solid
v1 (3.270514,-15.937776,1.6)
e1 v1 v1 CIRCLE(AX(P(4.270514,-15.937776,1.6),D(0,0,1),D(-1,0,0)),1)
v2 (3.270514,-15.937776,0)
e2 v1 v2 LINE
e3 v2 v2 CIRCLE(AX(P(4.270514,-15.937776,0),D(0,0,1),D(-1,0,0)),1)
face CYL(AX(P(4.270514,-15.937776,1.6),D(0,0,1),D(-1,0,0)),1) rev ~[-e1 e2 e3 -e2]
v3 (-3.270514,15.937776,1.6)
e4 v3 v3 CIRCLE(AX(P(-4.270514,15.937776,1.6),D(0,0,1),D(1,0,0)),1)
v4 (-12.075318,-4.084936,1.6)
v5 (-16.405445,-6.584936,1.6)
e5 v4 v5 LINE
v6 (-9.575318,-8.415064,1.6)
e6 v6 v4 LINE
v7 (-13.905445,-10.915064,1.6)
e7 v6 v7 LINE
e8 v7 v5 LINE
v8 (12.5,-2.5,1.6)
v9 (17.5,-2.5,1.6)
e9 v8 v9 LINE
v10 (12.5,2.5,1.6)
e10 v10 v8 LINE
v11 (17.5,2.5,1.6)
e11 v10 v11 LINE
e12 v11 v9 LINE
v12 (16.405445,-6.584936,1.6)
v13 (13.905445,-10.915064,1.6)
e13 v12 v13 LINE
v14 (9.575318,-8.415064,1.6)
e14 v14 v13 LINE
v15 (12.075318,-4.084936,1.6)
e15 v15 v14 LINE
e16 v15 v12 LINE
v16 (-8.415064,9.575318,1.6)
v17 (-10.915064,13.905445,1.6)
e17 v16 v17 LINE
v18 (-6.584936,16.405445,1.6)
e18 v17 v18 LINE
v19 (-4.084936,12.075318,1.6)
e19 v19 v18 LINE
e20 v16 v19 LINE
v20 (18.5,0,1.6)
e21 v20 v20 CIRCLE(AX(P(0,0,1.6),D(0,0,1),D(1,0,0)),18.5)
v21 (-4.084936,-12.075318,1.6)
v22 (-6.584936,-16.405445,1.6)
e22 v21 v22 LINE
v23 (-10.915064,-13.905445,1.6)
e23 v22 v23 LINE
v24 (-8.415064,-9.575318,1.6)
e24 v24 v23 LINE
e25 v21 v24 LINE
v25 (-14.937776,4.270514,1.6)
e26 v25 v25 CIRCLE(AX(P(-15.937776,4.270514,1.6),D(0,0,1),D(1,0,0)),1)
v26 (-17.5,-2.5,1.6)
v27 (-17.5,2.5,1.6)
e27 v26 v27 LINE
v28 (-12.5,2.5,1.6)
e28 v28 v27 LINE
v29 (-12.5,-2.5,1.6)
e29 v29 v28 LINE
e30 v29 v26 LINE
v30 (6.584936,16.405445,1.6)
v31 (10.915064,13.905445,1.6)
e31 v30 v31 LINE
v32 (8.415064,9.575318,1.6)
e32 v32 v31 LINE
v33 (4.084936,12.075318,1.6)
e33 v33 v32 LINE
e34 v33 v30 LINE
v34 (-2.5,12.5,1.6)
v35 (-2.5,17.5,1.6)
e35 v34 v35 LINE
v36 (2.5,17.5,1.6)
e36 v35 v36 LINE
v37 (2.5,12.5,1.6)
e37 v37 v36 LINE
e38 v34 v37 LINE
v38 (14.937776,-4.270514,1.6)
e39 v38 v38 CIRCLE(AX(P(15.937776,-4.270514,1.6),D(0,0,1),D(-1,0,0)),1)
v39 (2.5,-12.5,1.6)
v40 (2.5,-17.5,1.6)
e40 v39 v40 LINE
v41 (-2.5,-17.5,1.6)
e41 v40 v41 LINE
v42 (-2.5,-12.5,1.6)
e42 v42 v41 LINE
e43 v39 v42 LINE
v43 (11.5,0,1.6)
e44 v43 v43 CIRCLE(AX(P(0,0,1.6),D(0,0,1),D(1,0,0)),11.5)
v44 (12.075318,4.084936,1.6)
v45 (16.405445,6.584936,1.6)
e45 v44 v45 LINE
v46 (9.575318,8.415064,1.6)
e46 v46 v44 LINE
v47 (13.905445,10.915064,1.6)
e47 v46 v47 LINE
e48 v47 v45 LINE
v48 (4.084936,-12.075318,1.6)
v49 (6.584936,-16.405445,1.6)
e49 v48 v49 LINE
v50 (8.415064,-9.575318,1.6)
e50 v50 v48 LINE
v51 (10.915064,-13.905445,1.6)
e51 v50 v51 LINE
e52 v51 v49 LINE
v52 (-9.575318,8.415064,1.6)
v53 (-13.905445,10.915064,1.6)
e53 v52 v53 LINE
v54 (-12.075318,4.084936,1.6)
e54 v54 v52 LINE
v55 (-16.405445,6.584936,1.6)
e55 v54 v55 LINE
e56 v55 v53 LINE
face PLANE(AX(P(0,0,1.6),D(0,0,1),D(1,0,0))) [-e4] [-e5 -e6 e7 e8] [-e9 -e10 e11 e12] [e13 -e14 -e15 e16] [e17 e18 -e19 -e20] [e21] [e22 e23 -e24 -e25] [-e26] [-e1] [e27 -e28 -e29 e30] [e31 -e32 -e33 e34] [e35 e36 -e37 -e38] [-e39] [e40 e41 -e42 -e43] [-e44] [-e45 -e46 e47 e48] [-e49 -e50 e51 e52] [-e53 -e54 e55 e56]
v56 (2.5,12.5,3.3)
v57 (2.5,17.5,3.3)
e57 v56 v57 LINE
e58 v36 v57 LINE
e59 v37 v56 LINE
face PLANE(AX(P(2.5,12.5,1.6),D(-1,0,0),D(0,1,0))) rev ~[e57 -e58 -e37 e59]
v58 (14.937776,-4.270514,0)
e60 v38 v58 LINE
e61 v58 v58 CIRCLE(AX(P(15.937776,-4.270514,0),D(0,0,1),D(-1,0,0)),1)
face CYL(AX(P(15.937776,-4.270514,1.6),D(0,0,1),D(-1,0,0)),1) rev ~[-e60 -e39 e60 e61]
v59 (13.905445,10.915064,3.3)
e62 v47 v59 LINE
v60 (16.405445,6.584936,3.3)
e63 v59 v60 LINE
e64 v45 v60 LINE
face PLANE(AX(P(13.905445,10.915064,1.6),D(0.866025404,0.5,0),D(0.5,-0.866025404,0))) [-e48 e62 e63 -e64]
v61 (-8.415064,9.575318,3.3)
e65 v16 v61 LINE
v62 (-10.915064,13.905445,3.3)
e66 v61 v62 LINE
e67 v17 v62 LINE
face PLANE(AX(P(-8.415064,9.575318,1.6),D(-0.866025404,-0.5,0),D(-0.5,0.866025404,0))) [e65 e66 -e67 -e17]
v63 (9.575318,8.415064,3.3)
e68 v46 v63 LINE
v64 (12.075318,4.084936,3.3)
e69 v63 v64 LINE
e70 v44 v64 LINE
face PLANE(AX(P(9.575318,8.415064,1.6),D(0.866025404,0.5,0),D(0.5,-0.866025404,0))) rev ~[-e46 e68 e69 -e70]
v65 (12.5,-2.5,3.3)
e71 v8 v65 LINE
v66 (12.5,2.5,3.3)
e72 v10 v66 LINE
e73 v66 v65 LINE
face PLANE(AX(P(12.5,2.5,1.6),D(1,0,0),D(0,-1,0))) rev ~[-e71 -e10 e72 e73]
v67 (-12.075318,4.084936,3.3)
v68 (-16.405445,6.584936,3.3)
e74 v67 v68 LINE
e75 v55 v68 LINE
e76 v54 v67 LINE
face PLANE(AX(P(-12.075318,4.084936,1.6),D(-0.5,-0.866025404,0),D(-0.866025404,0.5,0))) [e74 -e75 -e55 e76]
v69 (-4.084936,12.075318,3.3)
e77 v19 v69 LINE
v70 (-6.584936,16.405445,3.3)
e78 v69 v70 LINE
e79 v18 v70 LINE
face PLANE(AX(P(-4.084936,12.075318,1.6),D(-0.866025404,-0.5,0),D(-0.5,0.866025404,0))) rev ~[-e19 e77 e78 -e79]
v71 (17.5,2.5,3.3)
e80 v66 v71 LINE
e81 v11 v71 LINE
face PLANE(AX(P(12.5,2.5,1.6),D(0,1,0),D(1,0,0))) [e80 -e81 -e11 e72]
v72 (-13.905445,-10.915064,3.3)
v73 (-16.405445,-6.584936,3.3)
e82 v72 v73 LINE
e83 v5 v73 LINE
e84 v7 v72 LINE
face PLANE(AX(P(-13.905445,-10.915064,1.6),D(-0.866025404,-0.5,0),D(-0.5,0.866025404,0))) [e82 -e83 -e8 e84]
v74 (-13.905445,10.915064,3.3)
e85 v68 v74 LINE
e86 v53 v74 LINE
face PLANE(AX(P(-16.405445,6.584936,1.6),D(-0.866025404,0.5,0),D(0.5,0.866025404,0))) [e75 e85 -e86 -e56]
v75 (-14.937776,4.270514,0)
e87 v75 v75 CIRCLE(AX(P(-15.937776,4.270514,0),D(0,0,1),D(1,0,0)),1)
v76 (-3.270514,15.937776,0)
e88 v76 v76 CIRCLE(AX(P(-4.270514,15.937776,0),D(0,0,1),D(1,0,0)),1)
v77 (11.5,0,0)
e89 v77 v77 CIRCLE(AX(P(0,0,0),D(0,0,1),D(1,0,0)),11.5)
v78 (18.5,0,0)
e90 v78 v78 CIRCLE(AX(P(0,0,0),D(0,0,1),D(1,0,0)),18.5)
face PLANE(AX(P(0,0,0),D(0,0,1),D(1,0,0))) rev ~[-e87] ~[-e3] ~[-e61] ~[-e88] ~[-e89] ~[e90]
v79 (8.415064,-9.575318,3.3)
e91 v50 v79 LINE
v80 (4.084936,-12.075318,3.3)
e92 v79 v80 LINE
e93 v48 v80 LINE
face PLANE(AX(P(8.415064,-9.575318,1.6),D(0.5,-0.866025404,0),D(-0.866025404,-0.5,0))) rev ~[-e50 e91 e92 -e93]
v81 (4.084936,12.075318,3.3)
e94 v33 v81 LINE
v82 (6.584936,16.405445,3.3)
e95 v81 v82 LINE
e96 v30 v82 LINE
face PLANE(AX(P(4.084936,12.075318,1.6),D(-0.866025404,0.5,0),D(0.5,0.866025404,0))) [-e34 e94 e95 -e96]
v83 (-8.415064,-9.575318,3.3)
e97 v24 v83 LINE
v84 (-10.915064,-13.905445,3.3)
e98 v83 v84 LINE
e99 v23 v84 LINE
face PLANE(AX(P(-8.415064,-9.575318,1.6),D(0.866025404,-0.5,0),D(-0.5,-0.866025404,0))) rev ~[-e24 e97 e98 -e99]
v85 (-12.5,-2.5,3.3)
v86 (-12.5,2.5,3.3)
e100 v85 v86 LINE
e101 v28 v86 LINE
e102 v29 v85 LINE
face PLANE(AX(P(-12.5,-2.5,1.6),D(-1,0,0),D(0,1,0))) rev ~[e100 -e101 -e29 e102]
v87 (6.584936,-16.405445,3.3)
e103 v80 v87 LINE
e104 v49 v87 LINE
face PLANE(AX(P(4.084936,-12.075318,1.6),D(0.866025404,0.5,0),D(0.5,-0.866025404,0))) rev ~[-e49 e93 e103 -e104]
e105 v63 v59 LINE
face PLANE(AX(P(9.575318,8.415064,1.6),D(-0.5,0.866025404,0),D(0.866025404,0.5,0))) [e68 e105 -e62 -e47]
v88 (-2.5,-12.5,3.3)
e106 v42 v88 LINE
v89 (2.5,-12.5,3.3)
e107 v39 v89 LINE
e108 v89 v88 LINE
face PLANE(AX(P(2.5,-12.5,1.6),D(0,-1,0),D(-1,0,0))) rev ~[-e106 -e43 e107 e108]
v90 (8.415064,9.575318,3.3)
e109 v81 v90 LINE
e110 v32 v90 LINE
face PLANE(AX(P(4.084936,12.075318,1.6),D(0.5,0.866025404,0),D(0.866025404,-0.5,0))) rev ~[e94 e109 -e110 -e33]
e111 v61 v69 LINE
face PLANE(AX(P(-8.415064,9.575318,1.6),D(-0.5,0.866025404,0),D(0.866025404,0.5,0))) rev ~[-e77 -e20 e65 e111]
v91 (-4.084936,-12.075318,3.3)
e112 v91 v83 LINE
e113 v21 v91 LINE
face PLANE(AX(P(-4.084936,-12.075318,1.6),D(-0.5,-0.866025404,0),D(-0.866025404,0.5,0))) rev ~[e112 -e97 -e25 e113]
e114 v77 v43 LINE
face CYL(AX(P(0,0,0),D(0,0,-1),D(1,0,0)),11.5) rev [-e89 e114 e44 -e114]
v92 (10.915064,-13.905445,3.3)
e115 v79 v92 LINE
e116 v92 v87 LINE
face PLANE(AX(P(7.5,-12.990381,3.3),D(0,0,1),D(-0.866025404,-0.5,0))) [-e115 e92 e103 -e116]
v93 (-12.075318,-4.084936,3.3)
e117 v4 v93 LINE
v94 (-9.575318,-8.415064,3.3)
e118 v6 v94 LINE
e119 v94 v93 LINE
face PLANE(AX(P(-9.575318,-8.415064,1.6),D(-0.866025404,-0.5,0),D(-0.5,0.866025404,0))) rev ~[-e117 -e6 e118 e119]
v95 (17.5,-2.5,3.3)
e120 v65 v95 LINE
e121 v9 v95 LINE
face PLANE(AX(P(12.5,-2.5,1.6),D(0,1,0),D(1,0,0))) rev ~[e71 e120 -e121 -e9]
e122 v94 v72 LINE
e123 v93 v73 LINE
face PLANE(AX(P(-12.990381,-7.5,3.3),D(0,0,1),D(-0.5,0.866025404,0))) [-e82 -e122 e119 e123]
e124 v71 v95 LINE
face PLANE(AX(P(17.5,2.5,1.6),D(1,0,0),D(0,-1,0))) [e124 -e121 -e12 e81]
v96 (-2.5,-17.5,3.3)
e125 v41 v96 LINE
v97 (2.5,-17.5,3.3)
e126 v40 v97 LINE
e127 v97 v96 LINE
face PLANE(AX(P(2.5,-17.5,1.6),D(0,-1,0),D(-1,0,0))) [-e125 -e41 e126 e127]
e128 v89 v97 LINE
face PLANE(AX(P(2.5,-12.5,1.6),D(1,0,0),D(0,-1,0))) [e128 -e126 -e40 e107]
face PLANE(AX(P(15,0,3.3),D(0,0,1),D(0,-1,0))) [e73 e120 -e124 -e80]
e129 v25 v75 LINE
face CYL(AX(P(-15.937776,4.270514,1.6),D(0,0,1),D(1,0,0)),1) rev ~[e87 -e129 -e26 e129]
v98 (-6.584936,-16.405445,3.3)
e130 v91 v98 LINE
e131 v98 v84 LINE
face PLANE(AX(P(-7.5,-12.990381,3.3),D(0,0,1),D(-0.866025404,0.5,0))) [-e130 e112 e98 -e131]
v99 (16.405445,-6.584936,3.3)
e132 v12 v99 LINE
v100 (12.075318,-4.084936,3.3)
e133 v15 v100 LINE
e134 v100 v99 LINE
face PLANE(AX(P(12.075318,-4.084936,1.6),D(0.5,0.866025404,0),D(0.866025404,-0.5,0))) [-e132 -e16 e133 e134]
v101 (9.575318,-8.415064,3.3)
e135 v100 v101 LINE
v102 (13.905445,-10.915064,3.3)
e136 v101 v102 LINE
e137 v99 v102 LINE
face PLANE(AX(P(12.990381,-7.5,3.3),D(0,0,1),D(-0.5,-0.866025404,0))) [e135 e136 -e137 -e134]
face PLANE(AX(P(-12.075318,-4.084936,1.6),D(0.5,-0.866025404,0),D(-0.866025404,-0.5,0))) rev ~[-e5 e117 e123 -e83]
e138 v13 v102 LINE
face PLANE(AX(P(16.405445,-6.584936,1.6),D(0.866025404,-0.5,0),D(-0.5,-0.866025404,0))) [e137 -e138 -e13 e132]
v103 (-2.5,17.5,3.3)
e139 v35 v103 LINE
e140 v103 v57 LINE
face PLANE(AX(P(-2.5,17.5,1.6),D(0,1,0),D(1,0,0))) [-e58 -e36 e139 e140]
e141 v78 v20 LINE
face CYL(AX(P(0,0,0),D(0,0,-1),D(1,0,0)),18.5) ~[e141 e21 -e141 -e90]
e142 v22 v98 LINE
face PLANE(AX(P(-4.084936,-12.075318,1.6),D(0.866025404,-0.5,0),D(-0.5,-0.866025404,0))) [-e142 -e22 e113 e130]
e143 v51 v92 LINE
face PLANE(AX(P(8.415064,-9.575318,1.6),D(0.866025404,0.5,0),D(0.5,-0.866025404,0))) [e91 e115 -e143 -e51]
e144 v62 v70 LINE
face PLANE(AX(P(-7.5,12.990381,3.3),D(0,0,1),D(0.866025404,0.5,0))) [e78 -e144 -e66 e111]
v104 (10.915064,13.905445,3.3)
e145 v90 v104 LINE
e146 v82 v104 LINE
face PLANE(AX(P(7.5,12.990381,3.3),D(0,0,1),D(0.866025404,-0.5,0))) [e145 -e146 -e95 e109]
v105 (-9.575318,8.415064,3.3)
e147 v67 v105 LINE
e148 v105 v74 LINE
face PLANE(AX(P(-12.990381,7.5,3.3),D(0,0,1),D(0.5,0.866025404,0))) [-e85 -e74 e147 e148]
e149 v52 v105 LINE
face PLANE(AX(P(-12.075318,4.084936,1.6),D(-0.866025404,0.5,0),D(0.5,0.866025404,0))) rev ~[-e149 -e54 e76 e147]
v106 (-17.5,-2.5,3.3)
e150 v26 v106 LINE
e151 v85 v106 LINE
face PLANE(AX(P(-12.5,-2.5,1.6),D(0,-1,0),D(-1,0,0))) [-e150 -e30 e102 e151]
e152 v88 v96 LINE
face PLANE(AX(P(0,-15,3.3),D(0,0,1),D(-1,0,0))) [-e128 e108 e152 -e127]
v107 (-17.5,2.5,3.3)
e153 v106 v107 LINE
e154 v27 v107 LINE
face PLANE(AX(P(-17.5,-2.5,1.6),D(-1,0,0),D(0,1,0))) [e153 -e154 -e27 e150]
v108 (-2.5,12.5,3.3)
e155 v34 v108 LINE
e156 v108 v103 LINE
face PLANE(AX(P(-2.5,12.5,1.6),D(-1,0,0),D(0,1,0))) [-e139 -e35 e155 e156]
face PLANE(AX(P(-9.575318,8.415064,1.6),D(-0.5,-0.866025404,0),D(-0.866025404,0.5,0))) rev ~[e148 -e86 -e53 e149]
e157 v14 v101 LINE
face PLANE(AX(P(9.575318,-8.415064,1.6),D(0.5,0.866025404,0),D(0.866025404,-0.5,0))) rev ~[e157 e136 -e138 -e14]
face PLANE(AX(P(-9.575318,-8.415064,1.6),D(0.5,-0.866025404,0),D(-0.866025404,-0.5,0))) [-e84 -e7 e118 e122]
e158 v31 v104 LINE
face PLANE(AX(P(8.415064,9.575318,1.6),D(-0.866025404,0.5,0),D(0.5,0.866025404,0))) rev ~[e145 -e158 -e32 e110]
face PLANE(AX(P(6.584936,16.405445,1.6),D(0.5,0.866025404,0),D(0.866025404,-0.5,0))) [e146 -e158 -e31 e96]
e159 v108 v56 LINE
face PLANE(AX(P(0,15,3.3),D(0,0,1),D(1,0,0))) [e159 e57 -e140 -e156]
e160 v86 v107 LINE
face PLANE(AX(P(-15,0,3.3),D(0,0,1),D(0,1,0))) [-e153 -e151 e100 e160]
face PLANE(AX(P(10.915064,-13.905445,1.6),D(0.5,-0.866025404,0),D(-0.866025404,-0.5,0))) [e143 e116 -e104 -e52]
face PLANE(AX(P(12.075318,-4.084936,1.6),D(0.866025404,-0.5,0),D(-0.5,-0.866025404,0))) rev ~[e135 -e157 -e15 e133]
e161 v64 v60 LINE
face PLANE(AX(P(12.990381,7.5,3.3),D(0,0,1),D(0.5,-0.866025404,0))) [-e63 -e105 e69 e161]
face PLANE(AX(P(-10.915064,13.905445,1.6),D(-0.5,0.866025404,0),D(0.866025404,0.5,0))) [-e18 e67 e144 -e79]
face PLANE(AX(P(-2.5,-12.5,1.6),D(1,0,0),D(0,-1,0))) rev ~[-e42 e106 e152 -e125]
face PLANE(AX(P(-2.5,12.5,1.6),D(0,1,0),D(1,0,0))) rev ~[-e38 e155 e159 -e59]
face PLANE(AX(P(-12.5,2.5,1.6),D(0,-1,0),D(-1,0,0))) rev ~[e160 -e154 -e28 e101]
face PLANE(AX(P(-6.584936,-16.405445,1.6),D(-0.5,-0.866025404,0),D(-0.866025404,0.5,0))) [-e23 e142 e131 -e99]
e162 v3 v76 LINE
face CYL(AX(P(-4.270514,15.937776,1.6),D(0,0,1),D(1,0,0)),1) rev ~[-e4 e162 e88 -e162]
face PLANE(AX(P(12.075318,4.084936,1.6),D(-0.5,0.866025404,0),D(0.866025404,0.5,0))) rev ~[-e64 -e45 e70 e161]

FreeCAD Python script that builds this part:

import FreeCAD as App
import Part
import Sketcher

V = App.Vector


def add_polygon(sketch, points):
    """Adds a closed chain of lines whose ends are joined by coincident constraints."""
    first, n = sketch.GeometryCount, len(points)
    for a, b in zip(points, points[1:] + points[:1]):
        sketch.addGeometry(Part.LineSegment(App.Vector(*a, 0), App.Vector(*b, 0)), False)
    for i in range(n):
        sketch.addConstraint(Sketcher.Constraint("Coincident", first + i, 2, first + (i + 1) % n, 1))

doc = App.newDocument("Part")
body = doc.addObject("PartDesign::Body", "Body")

# Sketch on XY plane
sketch1 = body.newObject("Sketcher::SketchObject", "Sketch")
sketch1.AttachmentSupport = (doc.getObject("XY_Plane"), [""])
sketch1.MapMode = "FlatFace"
sketch1.addGeometry([
    Part.Circle(V(0, 0, 0), V(0, 0, 1), 18),
    Part.Circle(V(0, 0, 0), V(0, 0, 1), 12),
], False)
sketch1.addConstraint([
    Sketcher.Constraint("Coincident", 0, 3, -1, 1),
    Sketcher.Constraint("Coincident", 1, 3, -1, 1),
    Sketcher.Constraint("Diameter", 0, 37.0),
    Sketcher.Constraint("Diameter", 1, 23.0),
])
pad1 = body.newObject("PartDesign::Pad", "Pad")
pad1.Profile = sketch1
pad1.Length = 1.6

# Sketch on XY plane
sketch2 = body.newObject("Sketcher::SketchObject", "Sketch001")
sketch2.AttachmentSupport = (doc.getObject("XY_Plane"), [""])
sketch2.MapMode = "FlatFace"
sketch2.AttachmentOffset = App.Placement(V(0, 0, 1.6), App.Rotation())
add_polygon(sketch2, [(-2, 18), (-2, 12), (2, 12), (2, 18)])  # lines 0-3
sketch2.addConstraint([
    Sketcher.Constraint("Vertical", 0),
    Sketcher.Constraint("Horizontal", 1),
    Sketcher.Constraint("Vertical", 2),
    Sketcher.Constraint("Horizontal", 3),
    Sketcher.Constraint("Equal", 3, 0),
    Sketcher.Constraint("DistanceX", 1, 1, 1, 2, 5.0),
    Sketcher.Constraint("DistanceX", 0, 2, -1, 1, 2.5),
    Sketcher.Constraint("DistanceY", -1, 1, 0, 2, 12.5),
])
pad2 = body.newObject("PartDesign::Pad", "Pad001")
pad2.Profile = sketch2
pad2.Length = 1.7
doc.recompute()

polarpattern = body.newObject("PartDesign::PolarPattern", "PolarPattern")
polarpattern.Originals = [pad2]
polarpattern.Axis = (doc.getObject("Z_Axis"), [""])
polarpattern.Angle = 360
polarpattern.Occurrences = 12
body.Tip = polarpattern

# Sketch on XY plane
sketch3 = body.newObject("Sketcher::SketchObject", "Sketch002")
sketch3.AttachmentSupport = (doc.getObject("XY_Plane"), [""])
sketch3.MapMode = "FlatFace"
sketch3.AttachmentOffset = App.Placement(V(0, 0, 1.6), App.Rotation())
sketch3.addGeometry(Part.Circle(V(-4.3, 15.9, 0), V(0, 0, 1), 1), False)
sketch3.addConstraint([
    Sketcher.Constraint("Diameter", 0, 2.0),
    Sketcher.Constraint("DistanceX", 0, 3, -1, 1, 4.270514),
    Sketcher.Constraint("DistanceY", -1, 1, 0, 3, 15.937776),
])
pocket1 = body.newObject("PartDesign::Pocket", "Pocket")
pocket1.Profile = sketch3
pocket1.Length = 2
doc.recompute()

polarpattern2 = body.newObject("PartDesign::PolarPattern", "PolarPattern001")
polarpattern2.Originals = [pocket1]
polarpattern2.Axis = (doc.getObject("Z_Axis"), [""])
polarpattern2.Angle = 360
polarpattern2.Occurrences = 2
body.Tip = polarpattern2

# Sketch on XY plane
sketch4 = body.newObject("Sketcher::SketchObject", "Sketch003")
sketch4.AttachmentSupport = (doc.getObject("XY_Plane"), [""])
sketch4.MapMode = "FlatFace"
sketch4.AttachmentOffset = App.Placement(V(0, 0, 1.6), App.Rotation())
sketch4.addGeometry(Part.Circle(V(-15.9, 4.3, 0), V(0, 0, 1), 1), False)
sketch4.addConstraint([
    Sketcher.Constraint("Diameter", 0, 2.0),
    Sketcher.Constraint("DistanceX", 0, 3, -1, 1, 15.937776),
    Sketcher.Constraint("DistanceY", -1, 1, 0, 3, 4.270514),
])
pocket2 = body.newObject("PartDesign::Pocket", "Pocket001")
pocket2.Profile = sketch4
pocket2.Length = 10
doc.recompute()

polarpattern3 = body.newObject("PartDesign::PolarPattern", "PolarPattern002")
polarpattern3.Originals = [pocket2]
polarpattern3.Axis = (doc.getObject("Z_Axis"), [""])
polarpattern3.Angle = 360
polarpattern3.Occurrences = 2
body.Tip = polarpattern3

doc.recompute()
